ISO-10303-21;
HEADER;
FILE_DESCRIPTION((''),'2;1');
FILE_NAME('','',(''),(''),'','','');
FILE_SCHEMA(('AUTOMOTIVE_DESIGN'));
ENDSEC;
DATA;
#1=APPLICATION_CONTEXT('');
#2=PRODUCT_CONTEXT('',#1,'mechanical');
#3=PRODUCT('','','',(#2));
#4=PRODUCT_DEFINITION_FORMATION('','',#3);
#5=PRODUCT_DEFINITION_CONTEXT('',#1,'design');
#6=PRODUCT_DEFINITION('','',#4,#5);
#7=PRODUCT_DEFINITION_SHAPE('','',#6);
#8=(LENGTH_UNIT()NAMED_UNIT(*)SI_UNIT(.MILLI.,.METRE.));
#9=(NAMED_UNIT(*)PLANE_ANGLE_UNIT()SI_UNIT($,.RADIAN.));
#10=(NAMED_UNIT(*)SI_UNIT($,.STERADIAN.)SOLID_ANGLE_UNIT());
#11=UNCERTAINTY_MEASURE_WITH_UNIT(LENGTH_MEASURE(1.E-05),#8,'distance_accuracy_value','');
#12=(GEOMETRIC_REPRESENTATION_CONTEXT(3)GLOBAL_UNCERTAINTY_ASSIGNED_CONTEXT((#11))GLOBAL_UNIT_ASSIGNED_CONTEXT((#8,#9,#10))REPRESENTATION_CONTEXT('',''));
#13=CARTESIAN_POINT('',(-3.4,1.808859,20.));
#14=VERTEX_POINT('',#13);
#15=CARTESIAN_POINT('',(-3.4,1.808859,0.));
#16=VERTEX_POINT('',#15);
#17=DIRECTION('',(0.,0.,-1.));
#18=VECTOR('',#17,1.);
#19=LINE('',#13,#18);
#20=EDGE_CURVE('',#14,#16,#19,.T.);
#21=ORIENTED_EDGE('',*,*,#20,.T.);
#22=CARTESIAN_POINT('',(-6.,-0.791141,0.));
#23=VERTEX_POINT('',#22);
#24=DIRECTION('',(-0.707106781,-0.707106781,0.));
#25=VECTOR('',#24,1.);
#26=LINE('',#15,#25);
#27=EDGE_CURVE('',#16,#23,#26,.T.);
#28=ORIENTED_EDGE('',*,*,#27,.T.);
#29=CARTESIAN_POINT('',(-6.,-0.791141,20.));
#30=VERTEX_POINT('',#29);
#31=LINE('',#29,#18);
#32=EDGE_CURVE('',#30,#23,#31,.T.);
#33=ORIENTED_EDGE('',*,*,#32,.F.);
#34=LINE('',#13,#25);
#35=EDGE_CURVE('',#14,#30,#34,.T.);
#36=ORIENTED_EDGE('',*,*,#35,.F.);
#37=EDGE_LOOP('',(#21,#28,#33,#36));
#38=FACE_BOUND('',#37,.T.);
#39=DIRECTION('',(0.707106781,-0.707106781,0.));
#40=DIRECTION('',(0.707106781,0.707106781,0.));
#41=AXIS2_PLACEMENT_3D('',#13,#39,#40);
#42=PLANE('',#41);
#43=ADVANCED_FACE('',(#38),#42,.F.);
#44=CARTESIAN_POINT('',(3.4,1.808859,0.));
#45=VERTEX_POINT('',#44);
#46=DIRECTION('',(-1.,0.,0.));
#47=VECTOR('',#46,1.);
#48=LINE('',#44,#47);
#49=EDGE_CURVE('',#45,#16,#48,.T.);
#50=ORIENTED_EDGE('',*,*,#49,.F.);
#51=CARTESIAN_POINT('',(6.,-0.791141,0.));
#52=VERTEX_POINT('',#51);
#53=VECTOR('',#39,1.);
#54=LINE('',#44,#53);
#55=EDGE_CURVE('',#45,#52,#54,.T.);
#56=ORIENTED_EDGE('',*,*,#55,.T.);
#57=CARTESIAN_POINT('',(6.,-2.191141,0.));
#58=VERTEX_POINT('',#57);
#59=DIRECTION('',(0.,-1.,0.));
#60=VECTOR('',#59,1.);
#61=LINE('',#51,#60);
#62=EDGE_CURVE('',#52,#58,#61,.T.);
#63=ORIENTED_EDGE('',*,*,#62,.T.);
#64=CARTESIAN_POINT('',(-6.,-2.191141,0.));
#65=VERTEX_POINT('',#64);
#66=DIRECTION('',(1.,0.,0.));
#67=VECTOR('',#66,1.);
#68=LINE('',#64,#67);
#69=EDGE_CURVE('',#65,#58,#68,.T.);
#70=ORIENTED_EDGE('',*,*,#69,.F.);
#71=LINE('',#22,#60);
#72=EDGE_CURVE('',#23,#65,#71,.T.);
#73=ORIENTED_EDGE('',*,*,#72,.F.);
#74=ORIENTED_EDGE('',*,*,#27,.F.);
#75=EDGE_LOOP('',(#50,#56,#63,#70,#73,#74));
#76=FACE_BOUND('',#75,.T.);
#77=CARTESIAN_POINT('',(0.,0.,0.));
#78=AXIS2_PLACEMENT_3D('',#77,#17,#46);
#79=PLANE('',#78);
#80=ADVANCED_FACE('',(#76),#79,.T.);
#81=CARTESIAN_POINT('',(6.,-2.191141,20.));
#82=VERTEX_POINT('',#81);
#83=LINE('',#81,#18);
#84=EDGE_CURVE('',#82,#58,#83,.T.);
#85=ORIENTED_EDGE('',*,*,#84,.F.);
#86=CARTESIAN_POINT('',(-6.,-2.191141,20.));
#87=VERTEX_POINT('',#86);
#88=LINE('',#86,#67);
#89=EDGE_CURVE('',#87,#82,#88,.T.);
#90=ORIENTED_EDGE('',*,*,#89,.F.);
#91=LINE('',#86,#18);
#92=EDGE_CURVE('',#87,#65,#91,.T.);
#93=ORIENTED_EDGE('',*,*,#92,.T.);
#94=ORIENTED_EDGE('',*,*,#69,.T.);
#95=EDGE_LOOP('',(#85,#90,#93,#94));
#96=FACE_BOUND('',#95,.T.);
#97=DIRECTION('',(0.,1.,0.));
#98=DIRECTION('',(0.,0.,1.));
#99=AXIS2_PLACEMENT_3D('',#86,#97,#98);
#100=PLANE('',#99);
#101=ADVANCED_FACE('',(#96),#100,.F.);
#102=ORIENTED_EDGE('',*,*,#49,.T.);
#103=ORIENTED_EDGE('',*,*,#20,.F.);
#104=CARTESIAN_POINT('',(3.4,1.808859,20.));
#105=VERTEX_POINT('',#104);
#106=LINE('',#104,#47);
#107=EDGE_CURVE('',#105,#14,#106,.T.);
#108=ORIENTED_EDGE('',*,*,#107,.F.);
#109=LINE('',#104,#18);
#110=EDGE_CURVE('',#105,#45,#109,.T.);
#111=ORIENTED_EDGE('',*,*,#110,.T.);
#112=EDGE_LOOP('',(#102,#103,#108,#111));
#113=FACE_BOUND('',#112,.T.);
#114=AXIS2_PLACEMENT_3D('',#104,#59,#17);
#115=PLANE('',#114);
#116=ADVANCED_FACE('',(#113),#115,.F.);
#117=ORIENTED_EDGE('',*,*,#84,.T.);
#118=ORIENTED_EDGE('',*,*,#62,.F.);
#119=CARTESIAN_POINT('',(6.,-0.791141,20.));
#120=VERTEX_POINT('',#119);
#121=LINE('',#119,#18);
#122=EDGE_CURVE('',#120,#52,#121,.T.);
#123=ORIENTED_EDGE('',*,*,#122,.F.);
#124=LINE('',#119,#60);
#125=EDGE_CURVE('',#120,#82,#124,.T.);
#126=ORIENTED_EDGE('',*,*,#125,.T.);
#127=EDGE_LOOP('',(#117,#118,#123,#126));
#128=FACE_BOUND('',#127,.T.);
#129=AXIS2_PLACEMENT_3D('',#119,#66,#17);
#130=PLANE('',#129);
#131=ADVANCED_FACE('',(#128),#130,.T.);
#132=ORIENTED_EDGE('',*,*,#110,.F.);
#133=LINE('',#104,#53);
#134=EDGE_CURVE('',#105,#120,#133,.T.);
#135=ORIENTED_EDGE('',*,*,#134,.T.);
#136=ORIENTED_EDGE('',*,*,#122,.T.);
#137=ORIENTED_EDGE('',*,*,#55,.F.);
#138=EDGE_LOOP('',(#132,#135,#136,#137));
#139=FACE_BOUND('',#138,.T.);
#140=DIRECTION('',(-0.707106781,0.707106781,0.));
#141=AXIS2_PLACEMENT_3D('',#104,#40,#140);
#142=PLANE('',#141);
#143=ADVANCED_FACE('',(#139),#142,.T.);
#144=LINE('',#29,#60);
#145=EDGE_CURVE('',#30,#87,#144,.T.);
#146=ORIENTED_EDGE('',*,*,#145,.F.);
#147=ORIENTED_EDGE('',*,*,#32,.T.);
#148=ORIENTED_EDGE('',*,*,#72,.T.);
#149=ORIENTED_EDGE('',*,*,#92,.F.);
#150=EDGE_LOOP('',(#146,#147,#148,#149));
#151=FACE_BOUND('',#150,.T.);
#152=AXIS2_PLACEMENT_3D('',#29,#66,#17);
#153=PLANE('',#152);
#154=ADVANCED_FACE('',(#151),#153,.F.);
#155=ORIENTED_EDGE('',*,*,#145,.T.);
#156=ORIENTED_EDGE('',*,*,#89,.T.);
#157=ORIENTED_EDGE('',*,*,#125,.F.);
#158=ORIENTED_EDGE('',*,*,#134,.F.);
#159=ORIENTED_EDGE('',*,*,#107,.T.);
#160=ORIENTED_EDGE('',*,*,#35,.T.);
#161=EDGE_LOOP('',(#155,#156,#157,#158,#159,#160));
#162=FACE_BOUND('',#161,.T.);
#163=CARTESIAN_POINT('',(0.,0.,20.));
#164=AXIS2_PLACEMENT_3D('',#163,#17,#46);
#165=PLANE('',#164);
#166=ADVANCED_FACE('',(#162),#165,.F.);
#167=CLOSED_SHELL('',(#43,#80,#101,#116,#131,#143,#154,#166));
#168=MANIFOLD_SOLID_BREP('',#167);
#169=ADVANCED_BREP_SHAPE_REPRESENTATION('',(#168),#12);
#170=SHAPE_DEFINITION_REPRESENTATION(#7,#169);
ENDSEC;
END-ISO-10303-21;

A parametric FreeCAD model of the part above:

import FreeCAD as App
import Part
import Sketcher


def add_polygon(sketch, points):
    """Adds a closed chain of lines whose ends are joined by coincident constraints."""
    first, n = sketch.GeometryCount, len(points)
    for a, b in zip(points, points[1:] + points[:1]):
        sketch.addGeometry(Part.LineSegment(App.Vector(*a, 0), App.Vector(*b, 0)), False)
    for i in range(n):
        sketch.addConstraint(Sketcher.Constraint("Coincident", first + i, 2, first + (i + 1) % n, 1))

doc = App.newDocument("Part")
body = doc.addObject("PartDesign::Body", "Body")

sketch1 = body.newObject("Sketcher::SketchObject", "Sketch")
sketch1.AttachmentSupport = (doc.getObject("XY_Plane"), [""])
sketch1.MapMode = "FlatFace"
add_polygon(sketch1, [(3.4, 1.808859), (-3.4, 1.808859), (-6, -0.791141), (-6, -2.191141), (6, -2.191141), (6, -0.791141)])
sketch1.addConstraint([
    Sketcher.Constraint("Horizontal", 0),
    Sketcher.Constraint("Vertical", 2),
    Sketcher.Constraint("Horizontal", 3),
    Sketcher.Constraint("Vertical", 4),
    Sketcher.Constraint("Symmetric", 1, 2, 4, 2, -2),
    Sketcher.Constraint("Perpendicular", 1, 5),
    Sketcher.Constraint("Equal", 1, 5),
    Sketcher.Constraint("DistanceX", 3, 1, 3, 2, 12.0),
    Sketcher.Constraint("DistanceX", 0, 2, 0, 1, 6.8),
    Sketcher.Constraint("DistanceY", 2, 2, 2, 1, 1.4),
    Sketcher.Constraint("DistanceY", -1, 1, 0, 2, 1.808859),
])
pad1 = body.newObject("PartDesign::Pad", "Pad")
pad1.Profile = sketch1
pad1.Length = 20

doc.recompute()
